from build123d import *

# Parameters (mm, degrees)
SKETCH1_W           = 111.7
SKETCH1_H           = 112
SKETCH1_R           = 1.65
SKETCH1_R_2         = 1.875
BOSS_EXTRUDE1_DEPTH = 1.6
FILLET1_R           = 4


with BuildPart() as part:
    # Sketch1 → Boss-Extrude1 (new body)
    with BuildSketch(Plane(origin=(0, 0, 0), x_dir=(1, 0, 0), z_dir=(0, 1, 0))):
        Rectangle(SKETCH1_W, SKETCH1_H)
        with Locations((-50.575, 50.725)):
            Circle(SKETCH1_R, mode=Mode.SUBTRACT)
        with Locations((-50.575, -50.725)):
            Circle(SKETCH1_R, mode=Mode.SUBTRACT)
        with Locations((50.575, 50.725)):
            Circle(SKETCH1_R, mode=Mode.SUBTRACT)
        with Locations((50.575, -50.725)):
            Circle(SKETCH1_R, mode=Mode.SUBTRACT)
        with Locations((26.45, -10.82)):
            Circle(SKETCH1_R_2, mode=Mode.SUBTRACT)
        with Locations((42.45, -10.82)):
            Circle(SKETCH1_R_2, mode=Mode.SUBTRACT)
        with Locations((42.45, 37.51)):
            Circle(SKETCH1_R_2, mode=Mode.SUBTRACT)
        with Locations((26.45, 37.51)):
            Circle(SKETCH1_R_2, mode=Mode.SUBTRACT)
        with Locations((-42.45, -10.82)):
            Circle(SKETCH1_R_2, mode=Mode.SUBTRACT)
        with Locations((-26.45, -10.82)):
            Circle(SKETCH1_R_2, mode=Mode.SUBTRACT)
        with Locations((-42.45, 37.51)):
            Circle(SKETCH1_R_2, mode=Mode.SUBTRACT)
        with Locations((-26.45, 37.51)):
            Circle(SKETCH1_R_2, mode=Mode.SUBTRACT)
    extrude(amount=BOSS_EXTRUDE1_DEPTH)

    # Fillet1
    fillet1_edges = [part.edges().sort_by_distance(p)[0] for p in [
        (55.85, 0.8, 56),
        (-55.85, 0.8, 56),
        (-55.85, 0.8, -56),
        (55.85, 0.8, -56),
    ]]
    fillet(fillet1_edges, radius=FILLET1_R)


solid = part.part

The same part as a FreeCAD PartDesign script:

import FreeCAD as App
import Part
import Sketcher
from FreeCAD import Vector


def edges_at(feature, points):
    """Names of the edges that pass closest to the given points."""
    edges = feature.Shape.Edges
    near = lambda p: min(range(len(edges)), key=lambda i: edges[i].distToShape(Part.Vertex(*p))[0])
    return sorted({f"Edge{near(p) + 1}" for p in points})


def add_polygon(sketch, points):
    """Adds a closed chain of lines whose ends are joined by coincident constraints."""
    first, n = sketch.GeometryCount, len(points)
    for a, b in zip(points, points[1:] + points[:1]):
        sketch.addGeometry(Part.LineSegment(App.Vector(*a, 0), App.Vector(*b, 0)), False)
    for i in range(n):
        sketch.addConstraint(Sketcher.Constraint("Coincident", first + i, 2, first + (i + 1) % n, 1))

doc = App.newDocument("Part")
params = doc.addObject("Spreadsheet::Sheet", "Params")
for row, (alias, value) in enumerate([
    ("sketch1_diameter", "3.3 mm"),
    ("sketch1_diameter2", "3.75 mm"),
    ("sketch1_height", "112 mm"),
    ("sketch1_width", "111.7 mm"),
    ("pad1_length", "1.6 mm"),
    ("fillet_radius", "4 mm"),
], start=1):
    params.set(f"A{row}", alias)
    params.set(f"B{row}", "=" + value)
    params.setAlias(f"B{row}", alias)

body = doc.addObject("PartDesign::Body", "Body")

# Sketch on XZ plane
sketch1 = body.newObject("Sketcher::SketchObject", "Sketch")
sketch1.AttachmentSupport = (doc.getObject("XZ_Plane"), [""])
sketch1.MapMode = "FlatFace"
add_polygon(sketch1, [(-55.85, -56), (-55.85, 56), (55.85, 56), (55.85, -56)])  # lines 0-3
sketch1.addGeometry(Part.Circle(Vector(-50.575, 50.725, 0), Vector(0, 0, 1), 1.65), False)  # 4
sketch1.addGeometry(Part.Circle(Vector(-42.45, 10.82, 0), Vector(0, 0, 1), 1.875), False)  # 5
sketch1.addGeometry(Part.Circle(Vector(-26.45, 10.82, 0), Vector(0, 0, 1), 1.875), False)  # 6
sketch1.addGeometry(Part.Circle(Vector(50.575, 50.725, 0), Vector(0, 0, 1), 1.65), False)  # 7
sketch1.addGeometry(Part.Circle(Vector(26.45, 10.82, 0), Vector(0, 0, 1), 1.875), False)  # 8
sketch1.addGeometry(Part.Circle(Vector(42.45, 10.82, 0), Vector(0, 0, 1), 1.875), False)  # 9
sketch1.addGeometry(Part.Circle(Vector(-42.45, -37.51, 0), Vector(0, 0, 1), 1.875), False)  # 10
sketch1.addGeometry(Part.Circle(Vector(-26.45, -37.51, 0), Vector(0, 0, 1), 1.875), False)  # 11
sketch1.addGeometry(Part.Circle(Vector(-50.575, -50.725, 0), Vector(0, 0, 1), 1.65), False)  # 12
sketch1.addGeometry(Part.Circle(Vector(26.45, -37.51, 0), Vector(0, 0, 1), 1.875), False)  # 13
sketch1.addGeometry(Part.Circle(Vector(42.45, -37.51, 0), Vector(0, 0, 1), 1.875), False)  # 14
sketch1.addGeometry(Part.Circle(Vector(50.575, -50.725, 0), Vector(0, 0, 1), 1.65), False)  # 15
sketch1.addConstraint([
    Sketcher.Constraint("Vertical", 0),
    Sketcher.Constraint("Horizontal", 1),
    Sketcher.Constraint("Vertical", 2),
    Sketcher.Constraint("Horizontal", 3),
    Sketcher.Constraint("Equal", 5, 6),
    Sketcher.Constraint("Equal", 4, 7),
    Sketcher.Constraint("Equal", 6, 8),
    Sketcher.Constraint("Equal", 8, 9),
    Sketcher.Constraint("Equal", 9, 10),
    Sketcher.Constraint("Equal", 10, 11),
    Sketcher.Constraint("Equal", 7, 12),
    Sketcher.Constraint("Equal", 11, 13),
    Sketcher.Constraint("Equal", 13, 14),
    Sketcher.Constraint("Equal", 12, 15),
    Sketcher.Constraint("Symmetric", 7, 3, 12, 3, -1, 1),
    Sketcher.Constraint("Symmetric", 4, 3, 15, 3, -1, 1),
    Sketcher.Constraint("Symmetric", 0, 2, 2, 2, -1, 1),
    Sketcher.Constraint("Symmetric", 4, 3, 7, 3, -2),
    Sketcher.Constraint("Symmetric", 6, 3, 8, 3, -2),
    Sketcher.Constraint("Symmetric", 5, 3, 9, 3, -2),
    Sketcher.Constraint("Symmetric", 11, 3, 13, 3, -2),
    Sketcher.Constraint("Symmetric", 10, 3, 14, 3, -2),
    Sketcher.Constraint("Horizontal", 5, 3, 6, 3),
    Sketcher.Constraint("Horizontal", 10, 3, 11, 3),
    Sketcher.Constraint("Vertical", 5, 3, 10, 3),
    Sketcher.Constraint("Vertical", 6, 3, 11, 3),
    Sketcher.Constraint("Diameter", 4, 3.3),
    Sketcher.Constraint("Diameter", 5, 3.75),
    Sketcher.Constraint("DistanceY", 0, 1, 0, 2, 112.0),
    Sketcher.Constraint("DistanceX", 1, 1, 1, 2, 111.7),
    Sketcher.Constraint("DistanceX", 5, 3, 6, 3, 16.0),
    Sketcher.Constraint("DistanceX", 6, 3, 8, 3, 52.9),
    Sketcher.Constraint("DistanceY", -1, 1, 5, 3, 10.82),
    Sketcher.Constraint("DistanceY", 10, 3, -1, 1, 37.51),
    Sketcher.Constraint("DistanceX", 4, 3, 7, 3, 101.15),
    Sketcher.Constraint("DistanceY", -1, 1, 4, 3, 50.725),
])
sketch1.setExpression("Constraints[30]", "Params.sketch1_diameter")
sketch1.setExpression("Constraints[31]", "Params.sketch1_diameter2")
sketch1.setExpression("Constraints[32]", "Params.sketch1_height")
sketch1.setExpression("Constraints[33]", "Params.sketch1_width")
pad1 = body.newObject("PartDesign::Pad", "Pad")
pad1.Profile = sketch1
pad1.setExpression("Length", "Params.pad1_length")
pad1.Reversed = True
doc.recompute()

fillet = body.newObject("PartDesign::Fillet", "Fillet")
fillet.Base = (pad1, edges_at(pad1, [
    (55.85, 0.8, 56),
    (-55.85, 0.8, 56),
    (-55.85, 0.8, -56),
    (55.85, 0.8, -56),
]))
fillet.setExpression("Radius", "Params.fillet_radius")

doc.recompute()
